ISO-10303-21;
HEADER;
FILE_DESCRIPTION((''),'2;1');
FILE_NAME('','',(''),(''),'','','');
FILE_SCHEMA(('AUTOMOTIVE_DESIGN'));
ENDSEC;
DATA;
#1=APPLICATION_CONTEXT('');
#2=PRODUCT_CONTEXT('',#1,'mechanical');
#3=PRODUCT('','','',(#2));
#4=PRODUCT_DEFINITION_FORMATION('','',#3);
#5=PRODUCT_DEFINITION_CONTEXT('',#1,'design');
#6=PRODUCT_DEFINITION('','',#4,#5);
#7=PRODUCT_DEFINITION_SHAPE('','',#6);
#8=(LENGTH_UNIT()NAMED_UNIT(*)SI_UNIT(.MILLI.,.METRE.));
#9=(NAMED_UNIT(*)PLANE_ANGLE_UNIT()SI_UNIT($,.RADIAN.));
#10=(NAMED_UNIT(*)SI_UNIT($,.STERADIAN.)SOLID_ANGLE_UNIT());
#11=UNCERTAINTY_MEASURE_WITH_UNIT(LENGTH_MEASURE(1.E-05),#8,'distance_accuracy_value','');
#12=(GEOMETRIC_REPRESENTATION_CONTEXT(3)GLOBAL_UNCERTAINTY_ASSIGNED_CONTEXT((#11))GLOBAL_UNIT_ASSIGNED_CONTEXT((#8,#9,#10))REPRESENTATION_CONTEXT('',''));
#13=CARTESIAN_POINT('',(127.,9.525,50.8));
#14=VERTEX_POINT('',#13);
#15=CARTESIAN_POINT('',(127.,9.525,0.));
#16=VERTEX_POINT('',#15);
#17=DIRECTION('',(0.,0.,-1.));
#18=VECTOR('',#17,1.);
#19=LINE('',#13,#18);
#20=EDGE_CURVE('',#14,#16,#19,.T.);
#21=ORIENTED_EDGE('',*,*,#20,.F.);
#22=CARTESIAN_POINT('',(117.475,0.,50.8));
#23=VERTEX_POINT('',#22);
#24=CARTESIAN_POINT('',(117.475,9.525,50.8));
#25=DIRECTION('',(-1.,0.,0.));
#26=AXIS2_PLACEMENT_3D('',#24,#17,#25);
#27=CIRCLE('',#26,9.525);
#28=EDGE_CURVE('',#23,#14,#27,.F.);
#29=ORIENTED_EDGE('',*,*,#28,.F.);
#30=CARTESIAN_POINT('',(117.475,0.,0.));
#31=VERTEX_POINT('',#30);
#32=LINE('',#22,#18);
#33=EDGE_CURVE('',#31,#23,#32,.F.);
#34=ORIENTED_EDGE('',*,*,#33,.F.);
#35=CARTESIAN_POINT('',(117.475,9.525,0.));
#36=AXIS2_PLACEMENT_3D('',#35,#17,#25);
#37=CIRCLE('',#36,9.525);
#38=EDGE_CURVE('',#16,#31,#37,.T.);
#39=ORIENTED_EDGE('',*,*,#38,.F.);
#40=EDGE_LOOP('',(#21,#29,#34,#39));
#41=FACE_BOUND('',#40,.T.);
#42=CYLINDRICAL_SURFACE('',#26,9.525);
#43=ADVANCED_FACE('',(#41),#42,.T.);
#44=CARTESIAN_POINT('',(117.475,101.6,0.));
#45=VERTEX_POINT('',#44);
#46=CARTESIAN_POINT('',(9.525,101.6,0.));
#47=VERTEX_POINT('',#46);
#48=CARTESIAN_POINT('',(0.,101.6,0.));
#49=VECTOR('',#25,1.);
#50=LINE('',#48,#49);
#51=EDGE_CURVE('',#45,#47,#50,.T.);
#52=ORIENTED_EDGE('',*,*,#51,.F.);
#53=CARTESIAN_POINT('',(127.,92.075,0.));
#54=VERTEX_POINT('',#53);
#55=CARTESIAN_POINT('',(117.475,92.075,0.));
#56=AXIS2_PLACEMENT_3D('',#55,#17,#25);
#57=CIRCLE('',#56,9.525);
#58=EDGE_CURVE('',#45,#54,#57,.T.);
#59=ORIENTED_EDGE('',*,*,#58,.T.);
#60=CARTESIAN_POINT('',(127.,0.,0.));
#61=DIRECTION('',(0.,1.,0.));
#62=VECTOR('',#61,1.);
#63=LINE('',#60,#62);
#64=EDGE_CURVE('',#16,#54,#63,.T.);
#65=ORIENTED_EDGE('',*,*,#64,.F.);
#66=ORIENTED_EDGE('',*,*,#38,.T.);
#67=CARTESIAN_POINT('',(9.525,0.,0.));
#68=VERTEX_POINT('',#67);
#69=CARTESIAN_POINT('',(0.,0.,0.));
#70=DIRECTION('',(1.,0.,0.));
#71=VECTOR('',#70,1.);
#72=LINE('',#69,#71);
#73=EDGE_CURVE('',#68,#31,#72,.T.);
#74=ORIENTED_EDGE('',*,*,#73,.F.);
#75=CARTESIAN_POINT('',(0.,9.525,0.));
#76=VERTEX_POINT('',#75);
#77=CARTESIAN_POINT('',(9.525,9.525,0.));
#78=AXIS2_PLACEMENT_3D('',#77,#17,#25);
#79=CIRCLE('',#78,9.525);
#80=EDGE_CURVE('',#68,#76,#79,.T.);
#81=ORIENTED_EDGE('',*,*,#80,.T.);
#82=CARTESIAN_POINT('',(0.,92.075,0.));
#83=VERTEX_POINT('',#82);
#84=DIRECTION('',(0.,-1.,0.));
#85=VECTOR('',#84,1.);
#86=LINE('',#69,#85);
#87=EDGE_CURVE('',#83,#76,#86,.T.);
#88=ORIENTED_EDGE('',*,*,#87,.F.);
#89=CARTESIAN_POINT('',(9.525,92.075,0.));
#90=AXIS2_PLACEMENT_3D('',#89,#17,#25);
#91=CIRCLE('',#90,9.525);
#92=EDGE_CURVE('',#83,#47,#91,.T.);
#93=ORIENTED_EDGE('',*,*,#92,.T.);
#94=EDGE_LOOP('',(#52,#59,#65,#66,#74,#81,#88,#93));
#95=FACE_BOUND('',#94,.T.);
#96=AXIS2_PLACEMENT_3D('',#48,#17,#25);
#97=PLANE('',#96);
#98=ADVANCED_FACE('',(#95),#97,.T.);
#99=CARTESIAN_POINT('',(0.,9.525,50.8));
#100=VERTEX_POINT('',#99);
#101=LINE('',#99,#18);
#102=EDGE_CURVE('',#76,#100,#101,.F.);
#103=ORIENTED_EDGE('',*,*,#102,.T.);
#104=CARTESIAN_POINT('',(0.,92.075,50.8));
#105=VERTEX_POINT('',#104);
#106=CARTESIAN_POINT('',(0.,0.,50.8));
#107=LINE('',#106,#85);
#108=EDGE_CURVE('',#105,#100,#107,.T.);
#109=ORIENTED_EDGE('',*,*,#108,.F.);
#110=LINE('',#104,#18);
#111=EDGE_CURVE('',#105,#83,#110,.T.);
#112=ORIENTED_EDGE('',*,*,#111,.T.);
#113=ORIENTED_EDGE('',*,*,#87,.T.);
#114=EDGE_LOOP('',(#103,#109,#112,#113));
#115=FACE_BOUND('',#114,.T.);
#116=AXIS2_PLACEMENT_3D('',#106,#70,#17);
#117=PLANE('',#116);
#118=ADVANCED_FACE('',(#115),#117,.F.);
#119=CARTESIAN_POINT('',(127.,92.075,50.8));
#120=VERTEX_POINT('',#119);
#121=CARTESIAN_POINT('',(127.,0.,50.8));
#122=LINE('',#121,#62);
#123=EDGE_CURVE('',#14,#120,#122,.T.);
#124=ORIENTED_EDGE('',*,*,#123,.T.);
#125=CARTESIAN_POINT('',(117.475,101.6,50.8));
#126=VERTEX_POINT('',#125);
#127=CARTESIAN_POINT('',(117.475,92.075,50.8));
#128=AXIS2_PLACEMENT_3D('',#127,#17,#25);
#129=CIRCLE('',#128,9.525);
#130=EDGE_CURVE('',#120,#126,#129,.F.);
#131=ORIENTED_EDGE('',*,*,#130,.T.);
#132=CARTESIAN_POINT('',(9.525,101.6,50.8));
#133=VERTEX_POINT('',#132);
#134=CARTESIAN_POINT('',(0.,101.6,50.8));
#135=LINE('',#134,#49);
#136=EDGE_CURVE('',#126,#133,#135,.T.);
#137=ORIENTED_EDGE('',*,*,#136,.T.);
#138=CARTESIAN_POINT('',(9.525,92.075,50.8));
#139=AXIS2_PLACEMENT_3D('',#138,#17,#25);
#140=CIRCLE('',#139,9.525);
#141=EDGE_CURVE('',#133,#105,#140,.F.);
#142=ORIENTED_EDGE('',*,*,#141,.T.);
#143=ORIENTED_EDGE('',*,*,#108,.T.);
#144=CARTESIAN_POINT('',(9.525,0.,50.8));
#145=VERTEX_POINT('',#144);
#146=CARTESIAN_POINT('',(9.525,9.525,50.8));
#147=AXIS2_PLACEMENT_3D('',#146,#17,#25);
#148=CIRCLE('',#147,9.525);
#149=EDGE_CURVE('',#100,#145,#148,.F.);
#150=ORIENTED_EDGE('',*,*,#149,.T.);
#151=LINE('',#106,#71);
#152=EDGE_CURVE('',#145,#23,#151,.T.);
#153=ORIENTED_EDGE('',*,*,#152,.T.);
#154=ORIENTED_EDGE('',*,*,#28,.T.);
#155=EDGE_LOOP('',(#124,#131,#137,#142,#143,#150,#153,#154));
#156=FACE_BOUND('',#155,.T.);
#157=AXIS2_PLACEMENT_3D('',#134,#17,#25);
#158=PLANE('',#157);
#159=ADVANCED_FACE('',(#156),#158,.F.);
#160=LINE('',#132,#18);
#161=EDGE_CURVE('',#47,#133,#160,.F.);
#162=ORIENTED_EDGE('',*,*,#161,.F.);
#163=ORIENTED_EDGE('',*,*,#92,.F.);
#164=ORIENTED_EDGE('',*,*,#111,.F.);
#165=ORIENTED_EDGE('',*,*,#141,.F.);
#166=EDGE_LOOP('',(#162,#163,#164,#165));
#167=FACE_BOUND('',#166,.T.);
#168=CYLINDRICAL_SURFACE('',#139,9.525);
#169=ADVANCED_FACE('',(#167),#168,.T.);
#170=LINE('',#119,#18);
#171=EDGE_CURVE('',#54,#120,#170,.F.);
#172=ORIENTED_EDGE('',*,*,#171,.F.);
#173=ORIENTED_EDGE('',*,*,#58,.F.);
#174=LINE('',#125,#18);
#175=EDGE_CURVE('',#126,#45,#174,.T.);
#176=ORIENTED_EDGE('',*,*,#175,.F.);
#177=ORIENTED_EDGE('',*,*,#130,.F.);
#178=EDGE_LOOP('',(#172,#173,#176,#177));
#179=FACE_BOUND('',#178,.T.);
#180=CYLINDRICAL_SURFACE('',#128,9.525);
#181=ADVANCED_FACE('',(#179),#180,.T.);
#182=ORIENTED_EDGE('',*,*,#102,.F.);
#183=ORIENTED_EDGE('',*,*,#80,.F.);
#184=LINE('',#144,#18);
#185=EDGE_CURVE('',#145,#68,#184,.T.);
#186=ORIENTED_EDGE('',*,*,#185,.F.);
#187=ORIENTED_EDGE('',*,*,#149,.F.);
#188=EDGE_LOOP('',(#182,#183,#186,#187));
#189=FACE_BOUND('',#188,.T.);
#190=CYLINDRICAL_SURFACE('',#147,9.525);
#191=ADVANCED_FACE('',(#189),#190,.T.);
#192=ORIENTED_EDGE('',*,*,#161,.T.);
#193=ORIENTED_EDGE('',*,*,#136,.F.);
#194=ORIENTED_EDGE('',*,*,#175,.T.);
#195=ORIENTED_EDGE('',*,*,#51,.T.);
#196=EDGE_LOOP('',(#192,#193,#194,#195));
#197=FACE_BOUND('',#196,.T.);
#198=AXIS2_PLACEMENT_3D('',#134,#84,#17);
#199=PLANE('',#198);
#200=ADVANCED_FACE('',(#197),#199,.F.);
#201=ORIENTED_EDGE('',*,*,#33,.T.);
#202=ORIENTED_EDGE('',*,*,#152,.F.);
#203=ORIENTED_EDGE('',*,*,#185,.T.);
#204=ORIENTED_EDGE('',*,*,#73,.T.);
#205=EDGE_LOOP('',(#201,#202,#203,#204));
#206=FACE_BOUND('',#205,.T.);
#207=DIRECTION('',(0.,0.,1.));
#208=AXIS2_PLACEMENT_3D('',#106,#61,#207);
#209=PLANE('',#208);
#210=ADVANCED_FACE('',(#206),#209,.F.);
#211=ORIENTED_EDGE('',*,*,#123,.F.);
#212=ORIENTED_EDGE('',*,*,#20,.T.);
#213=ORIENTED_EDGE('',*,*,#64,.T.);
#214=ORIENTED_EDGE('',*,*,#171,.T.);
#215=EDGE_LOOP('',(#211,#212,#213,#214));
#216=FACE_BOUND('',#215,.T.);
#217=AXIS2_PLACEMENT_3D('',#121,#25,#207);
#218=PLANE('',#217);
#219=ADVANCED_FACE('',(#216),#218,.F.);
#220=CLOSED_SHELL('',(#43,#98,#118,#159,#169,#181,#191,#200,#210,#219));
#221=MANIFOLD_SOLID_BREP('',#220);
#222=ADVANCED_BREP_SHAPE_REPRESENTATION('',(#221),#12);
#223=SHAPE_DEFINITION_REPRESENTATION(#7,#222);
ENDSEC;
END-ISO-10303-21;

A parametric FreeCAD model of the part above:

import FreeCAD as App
import Part
import Sketcher
from FreeCAD import Vector
Q = App.Units.Quantity


def edges_at(feature, points):
    """Names of the edges that pass closest to the given points."""
    edges = feature.Shape.Edges
    near = lambda p: min(range(len(edges)), key=lambda i: edges[i].distToShape(Part.Vertex(*p))[0])
    return sorted({f"Edge{near(p) + 1}" for p in points})


def add_polygon(sketch, points):
    """Adds a closed chain of lines whose ends are joined by coincident constraints."""
    first, n = sketch.GeometryCount, len(points)
    for a, b in zip(points, points[1:] + points[:1]):
        sketch.addGeometry(Part.LineSegment(App.Vector(*a, 0), App.Vector(*b, 0)), False)
    for i in range(n):
        sketch.addConstraint(Sketcher.Constraint("Coincident", first + i, 2, first + (i + 1) % n, 1))

doc = App.newDocument("Part")
body = doc.addObject("PartDesign::Body", "Body")

# Sketch on XY plane
sketch1 = body.newObject("Sketcher::SketchObject", "Sketch")
sketch1.AttachmentSupport = (doc.getObject("XY_Plane"), [""])
sketch1.MapMode = "FlatFace"
add_polygon(sketch1, [(0, 102), (0, 0), (127, 0), (127, 102)])  # lines 0-3
sketch1.addConstraint([
    Sketcher.Constraint("Vertical", 0),
    Sketcher.Constraint("Horizontal", 1),
    Sketcher.Constraint("Vertical", 2),
    Sketcher.Constraint("Horizontal", 3),
    Sketcher.Constraint("Coincident", 0, 2, -1, 1),
    Sketcher.Constraint("DistanceX", 1, 1, 1, 2, Q("5 in")),
    Sketcher.Constraint("DistanceY", 0, 2, 0, 1, Q("4 in")),
])
pad1 = body.newObject("PartDesign::Pad", "Pad")
pad1.Profile = sketch1
pad1.Length = Q("2 in")
doc.recompute()

fillet = body.newObject("PartDesign::Fillet", "Fillet")
fillet.Base = (pad1, edges_at(pad1, [
    (0, 0, 25.4),
    (127, 0, 25.4),
    (127, 101.6, 25.4),
    (0, 101.6, 25.4),
]))
fillet.Radius = Q("0.375 in")

doc.recompute()
